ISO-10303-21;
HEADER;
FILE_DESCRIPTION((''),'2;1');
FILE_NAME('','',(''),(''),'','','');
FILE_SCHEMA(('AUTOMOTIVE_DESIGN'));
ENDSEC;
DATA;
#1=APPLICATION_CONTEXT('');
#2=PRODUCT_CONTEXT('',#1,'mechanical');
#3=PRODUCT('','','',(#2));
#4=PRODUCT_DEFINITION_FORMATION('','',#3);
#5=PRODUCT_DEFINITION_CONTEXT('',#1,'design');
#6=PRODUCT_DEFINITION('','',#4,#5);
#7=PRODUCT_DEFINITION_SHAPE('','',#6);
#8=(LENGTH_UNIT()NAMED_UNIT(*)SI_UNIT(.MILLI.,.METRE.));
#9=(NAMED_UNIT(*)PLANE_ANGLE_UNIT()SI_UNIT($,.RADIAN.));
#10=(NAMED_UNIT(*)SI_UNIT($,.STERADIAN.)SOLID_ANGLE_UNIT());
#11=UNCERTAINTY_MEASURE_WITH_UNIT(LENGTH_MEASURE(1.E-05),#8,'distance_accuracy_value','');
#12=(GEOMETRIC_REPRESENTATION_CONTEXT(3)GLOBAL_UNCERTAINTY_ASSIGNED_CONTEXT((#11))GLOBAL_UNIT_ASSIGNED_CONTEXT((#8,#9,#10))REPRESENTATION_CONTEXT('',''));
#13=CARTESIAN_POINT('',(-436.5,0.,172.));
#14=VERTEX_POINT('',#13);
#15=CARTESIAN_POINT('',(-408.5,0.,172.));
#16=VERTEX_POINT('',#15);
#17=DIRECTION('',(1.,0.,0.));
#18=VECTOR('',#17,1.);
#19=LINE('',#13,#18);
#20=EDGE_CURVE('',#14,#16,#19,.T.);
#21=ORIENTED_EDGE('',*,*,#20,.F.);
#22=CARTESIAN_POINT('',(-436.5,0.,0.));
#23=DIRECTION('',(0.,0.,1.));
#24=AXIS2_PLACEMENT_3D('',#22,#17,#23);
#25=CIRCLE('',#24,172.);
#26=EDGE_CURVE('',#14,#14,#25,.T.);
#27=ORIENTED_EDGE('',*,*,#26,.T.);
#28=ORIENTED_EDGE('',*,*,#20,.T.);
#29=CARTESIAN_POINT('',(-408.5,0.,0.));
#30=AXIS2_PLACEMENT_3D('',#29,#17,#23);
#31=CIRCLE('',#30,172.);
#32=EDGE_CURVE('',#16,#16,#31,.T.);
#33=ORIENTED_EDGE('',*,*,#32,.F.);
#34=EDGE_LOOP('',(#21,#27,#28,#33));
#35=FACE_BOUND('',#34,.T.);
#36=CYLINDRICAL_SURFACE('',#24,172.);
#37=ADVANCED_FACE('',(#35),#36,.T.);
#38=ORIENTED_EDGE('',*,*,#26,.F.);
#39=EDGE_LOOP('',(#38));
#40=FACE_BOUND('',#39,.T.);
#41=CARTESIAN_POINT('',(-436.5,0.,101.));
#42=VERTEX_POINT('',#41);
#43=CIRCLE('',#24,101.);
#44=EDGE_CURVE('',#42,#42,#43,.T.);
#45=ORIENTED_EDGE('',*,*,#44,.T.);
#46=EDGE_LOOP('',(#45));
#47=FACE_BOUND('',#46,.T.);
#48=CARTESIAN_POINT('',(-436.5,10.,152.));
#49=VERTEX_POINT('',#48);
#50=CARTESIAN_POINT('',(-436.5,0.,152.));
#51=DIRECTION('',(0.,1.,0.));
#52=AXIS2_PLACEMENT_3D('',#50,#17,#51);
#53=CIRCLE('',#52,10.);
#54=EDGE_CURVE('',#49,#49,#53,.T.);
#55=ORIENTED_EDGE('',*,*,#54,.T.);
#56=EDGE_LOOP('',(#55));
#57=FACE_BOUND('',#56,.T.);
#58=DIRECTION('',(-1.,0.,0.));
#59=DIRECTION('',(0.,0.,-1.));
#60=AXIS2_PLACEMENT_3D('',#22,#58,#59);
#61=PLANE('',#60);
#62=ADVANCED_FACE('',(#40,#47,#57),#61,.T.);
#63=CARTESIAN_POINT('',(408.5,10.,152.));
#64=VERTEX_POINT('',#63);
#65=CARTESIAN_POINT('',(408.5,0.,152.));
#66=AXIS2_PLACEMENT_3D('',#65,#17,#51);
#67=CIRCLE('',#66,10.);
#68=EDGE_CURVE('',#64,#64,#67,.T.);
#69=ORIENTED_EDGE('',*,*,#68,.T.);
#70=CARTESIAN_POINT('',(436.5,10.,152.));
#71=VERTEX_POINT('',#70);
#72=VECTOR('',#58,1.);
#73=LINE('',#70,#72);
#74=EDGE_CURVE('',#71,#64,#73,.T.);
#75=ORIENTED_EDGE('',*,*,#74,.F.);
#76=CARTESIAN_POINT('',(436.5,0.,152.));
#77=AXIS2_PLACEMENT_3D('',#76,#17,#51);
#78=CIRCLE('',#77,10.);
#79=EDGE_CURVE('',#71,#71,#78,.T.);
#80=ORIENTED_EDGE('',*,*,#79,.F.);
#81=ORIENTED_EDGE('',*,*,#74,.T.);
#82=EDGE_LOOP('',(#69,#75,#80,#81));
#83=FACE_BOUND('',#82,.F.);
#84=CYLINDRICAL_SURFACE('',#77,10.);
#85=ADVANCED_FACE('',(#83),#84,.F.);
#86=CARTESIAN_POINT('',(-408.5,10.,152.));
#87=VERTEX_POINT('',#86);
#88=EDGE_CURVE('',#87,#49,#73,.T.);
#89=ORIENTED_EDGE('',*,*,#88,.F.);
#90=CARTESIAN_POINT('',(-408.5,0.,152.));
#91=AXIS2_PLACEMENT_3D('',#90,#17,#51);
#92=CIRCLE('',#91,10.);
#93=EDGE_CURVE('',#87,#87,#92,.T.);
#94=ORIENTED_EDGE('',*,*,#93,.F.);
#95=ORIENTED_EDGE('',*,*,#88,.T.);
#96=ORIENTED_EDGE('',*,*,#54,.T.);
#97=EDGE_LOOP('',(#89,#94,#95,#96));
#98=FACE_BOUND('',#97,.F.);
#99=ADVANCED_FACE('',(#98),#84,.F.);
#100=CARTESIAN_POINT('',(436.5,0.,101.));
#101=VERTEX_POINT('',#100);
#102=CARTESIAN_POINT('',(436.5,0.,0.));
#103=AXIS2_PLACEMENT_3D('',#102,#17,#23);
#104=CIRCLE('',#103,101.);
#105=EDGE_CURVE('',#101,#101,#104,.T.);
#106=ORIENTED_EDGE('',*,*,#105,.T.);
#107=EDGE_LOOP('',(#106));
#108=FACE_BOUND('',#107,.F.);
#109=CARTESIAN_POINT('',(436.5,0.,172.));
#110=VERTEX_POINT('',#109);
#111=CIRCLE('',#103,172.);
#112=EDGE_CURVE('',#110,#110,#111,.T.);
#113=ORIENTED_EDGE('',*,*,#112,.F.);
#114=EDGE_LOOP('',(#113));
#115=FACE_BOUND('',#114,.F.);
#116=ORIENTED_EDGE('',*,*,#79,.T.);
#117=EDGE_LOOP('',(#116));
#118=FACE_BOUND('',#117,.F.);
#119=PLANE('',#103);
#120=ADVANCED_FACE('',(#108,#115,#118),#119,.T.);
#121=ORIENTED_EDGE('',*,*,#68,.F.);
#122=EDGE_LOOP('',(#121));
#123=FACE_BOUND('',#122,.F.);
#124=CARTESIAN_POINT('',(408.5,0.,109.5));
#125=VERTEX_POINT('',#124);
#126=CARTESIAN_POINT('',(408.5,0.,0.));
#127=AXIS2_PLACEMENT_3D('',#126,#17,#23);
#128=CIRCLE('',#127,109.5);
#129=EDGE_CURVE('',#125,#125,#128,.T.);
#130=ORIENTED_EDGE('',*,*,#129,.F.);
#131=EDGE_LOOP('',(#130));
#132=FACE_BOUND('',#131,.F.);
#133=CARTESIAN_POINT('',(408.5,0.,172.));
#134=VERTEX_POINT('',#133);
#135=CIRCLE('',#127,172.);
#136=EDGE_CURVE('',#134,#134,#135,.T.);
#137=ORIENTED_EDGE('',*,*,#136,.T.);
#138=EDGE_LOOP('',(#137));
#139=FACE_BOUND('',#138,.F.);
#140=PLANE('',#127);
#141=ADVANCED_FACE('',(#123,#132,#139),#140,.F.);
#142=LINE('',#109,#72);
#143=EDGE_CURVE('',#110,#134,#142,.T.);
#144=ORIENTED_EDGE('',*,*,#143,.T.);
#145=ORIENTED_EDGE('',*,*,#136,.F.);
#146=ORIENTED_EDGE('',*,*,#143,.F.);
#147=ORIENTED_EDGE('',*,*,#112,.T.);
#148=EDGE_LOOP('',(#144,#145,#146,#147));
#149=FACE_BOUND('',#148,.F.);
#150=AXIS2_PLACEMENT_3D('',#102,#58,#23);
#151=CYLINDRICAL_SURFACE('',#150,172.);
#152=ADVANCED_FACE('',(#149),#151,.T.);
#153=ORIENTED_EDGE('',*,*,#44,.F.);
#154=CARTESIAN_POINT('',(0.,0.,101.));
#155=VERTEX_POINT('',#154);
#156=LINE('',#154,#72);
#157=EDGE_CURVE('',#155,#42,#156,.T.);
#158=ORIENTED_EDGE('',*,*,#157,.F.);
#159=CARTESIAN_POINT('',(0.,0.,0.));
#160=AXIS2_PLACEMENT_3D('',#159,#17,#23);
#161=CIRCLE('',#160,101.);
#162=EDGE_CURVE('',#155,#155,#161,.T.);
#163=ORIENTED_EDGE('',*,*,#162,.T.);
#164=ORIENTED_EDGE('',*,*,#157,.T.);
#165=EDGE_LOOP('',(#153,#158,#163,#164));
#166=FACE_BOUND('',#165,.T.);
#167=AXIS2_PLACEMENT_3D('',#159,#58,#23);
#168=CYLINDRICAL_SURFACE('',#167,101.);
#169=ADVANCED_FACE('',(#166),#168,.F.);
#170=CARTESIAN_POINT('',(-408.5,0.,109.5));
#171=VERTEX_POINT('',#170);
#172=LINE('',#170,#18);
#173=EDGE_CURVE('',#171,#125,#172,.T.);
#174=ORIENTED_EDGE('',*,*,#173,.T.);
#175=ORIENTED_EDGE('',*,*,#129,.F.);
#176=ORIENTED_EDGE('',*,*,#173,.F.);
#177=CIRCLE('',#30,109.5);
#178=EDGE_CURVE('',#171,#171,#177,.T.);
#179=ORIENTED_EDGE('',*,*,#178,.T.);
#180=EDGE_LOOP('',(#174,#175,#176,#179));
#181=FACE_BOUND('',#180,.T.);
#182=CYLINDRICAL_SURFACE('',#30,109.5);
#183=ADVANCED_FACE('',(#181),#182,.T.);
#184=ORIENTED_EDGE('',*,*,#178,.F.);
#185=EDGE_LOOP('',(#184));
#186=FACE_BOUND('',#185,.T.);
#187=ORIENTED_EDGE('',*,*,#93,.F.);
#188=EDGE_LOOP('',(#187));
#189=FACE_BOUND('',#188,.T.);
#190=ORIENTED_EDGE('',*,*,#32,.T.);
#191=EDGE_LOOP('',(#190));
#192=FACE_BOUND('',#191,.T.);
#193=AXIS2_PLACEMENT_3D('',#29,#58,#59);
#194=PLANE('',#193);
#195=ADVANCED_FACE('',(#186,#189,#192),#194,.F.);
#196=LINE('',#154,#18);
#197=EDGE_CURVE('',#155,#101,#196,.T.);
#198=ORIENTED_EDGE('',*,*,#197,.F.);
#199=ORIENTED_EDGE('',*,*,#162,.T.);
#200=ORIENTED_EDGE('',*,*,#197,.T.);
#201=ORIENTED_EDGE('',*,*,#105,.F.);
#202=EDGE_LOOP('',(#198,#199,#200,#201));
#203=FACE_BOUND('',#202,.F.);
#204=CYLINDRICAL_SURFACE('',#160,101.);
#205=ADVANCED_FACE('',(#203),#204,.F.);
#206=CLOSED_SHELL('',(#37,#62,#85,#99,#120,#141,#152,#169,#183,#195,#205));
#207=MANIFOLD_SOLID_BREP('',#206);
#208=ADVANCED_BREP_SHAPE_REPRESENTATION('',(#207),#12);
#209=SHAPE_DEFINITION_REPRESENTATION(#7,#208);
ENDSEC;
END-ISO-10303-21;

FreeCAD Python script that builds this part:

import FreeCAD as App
import Part
import Sketcher
Q = App.Units.Quantity

doc = App.newDocument("Part")
body = doc.addObject("PartDesign::Body", "Body")

# Sketch on XZ plane
sketch1 = body.newObject("Sketcher::SketchObject", "Sketch")
sketch1.AttachmentSupport = (doc.getObject("XZ_Plane"), [""])
sketch1.MapMode = "FlatFace"
sketch1.addGeometry([
    Part.LineSegment(App.Vector(408, 110, 0), App.Vector(0, 110, 0)),  # 0
    Part.LineSegment(App.Vector(0, 110, 0), App.Vector(0, 101, 0)),  # 1
    Part.LineSegment(App.Vector(0, 101, 0), App.Vector(436, 101, 0)),  # 2
    Part.LineSegment(App.Vector(436, 101, 0), App.Vector(436, 172, 0)),  # 3
    Part.LineSegment(App.Vector(436, 172, 0), App.Vector(408, 172, 0)),  # 4
    Part.LineSegment(App.Vector(408, 172, 0), App.Vector(408, 110, 0)),  # 5
], False)
sketch1.addConstraint([
    Sketcher.Constraint("Coincident", 0, 2, 1, 1),
    Sketcher.Constraint("Coincident", 1, 2, 2, 1),
    Sketcher.Constraint("Coincident", 2, 2, 3, 1),
    Sketcher.Constraint("Coincident", 3, 2, 4, 1),
    Sketcher.Constraint("Coincident", 4, 2, 5, 1),
    Sketcher.Constraint("Coincident", 5, 2, 0, 1),
    Sketcher.Constraint("Horizontal", 0),
    Sketcher.Constraint("Vertical", 1),
    Sketcher.Constraint("Horizontal", 2),
    Sketcher.Constraint("Vertical", 3),
    Sketcher.Constraint("Horizontal", 4),
    Sketcher.Constraint("Vertical", 5),
    Sketcher.Constraint("PointOnObject", 0, 2, -2),
    Sketcher.Constraint("DistanceX", 4, 2, 4, 1, Q("28 mm")),
    Sketcher.Constraint("DistanceY", 3, 1, 3, 2, Q("71 mm")),
    Sketcher.Constraint("DistanceX", 0, 2, 0, 1, Q("408.5 mm")),
    Sketcher.Constraint("DistanceY", 1, 2, 1, 1, Q("8.5 mm")),
    Sketcher.Constraint("DistanceY", -1, 1, 1, 2, Q("101 mm")),
])
revolution = body.newObject("PartDesign::Revolution", "Revolution")
revolution.Profile = sketch1
revolution.ReferenceAxis = (sketch1, ["H_Axis"])
revolution.Angle = 360
body2 = doc.addObject("PartDesign::Body", "Body001")
doc.recompute()

body2.BaseFeature = body
doc.recompute()

mirroring = doc.addObject("Part::Mirroring", "Mirroring")
mirroring.Source = body
mirroring.Base = App.Vector(0, 0, 0)
mirroring.Normal = App.Vector(1, 0, 0)
body3 = doc.addObject("PartDesign::Body", "Body002")
body3.BaseFeature = mirroring
boolean = body2.newObject("PartDesign::Boolean", "Boolean")
boolean.Type = "Fuse"
boolean.addObjects([body3])
doc.recompute()

# Sketch on YZ plane
sketch2 = body2.newObject("Sketcher::SketchObject", "Sketch001")
sketch2.AttachmentSupport = (doc.getObject("YZ_Plane001"), [""])
sketch2.MapMode = "FlatFace"
sketch2.AttachmentOffset = App.Placement(App.Vector(0, 0, 436.5), App.Rotation())
sketch2.addGeometry(Part.Circle(App.Vector(0, 152, 0), App.Vector(0, 0, 1), 10), False)
sketch2.addConstraint([
    Sketcher.Constraint("PointOnObject", 0, 3, -2),
    Sketcher.Constraint("Diameter", 0, Q("20 mm")),
    Sketcher.Constraint("DistanceY", -1, 1, 0, 3, Q("152 mm")),
])
pocket1 = body2.newObject("PartDesign::Pocket", "Pocket")
pocket1.Profile = sketch2
pocket1.Type = "ThroughAll"
mirroring.Visibility = False

doc.recompute()
